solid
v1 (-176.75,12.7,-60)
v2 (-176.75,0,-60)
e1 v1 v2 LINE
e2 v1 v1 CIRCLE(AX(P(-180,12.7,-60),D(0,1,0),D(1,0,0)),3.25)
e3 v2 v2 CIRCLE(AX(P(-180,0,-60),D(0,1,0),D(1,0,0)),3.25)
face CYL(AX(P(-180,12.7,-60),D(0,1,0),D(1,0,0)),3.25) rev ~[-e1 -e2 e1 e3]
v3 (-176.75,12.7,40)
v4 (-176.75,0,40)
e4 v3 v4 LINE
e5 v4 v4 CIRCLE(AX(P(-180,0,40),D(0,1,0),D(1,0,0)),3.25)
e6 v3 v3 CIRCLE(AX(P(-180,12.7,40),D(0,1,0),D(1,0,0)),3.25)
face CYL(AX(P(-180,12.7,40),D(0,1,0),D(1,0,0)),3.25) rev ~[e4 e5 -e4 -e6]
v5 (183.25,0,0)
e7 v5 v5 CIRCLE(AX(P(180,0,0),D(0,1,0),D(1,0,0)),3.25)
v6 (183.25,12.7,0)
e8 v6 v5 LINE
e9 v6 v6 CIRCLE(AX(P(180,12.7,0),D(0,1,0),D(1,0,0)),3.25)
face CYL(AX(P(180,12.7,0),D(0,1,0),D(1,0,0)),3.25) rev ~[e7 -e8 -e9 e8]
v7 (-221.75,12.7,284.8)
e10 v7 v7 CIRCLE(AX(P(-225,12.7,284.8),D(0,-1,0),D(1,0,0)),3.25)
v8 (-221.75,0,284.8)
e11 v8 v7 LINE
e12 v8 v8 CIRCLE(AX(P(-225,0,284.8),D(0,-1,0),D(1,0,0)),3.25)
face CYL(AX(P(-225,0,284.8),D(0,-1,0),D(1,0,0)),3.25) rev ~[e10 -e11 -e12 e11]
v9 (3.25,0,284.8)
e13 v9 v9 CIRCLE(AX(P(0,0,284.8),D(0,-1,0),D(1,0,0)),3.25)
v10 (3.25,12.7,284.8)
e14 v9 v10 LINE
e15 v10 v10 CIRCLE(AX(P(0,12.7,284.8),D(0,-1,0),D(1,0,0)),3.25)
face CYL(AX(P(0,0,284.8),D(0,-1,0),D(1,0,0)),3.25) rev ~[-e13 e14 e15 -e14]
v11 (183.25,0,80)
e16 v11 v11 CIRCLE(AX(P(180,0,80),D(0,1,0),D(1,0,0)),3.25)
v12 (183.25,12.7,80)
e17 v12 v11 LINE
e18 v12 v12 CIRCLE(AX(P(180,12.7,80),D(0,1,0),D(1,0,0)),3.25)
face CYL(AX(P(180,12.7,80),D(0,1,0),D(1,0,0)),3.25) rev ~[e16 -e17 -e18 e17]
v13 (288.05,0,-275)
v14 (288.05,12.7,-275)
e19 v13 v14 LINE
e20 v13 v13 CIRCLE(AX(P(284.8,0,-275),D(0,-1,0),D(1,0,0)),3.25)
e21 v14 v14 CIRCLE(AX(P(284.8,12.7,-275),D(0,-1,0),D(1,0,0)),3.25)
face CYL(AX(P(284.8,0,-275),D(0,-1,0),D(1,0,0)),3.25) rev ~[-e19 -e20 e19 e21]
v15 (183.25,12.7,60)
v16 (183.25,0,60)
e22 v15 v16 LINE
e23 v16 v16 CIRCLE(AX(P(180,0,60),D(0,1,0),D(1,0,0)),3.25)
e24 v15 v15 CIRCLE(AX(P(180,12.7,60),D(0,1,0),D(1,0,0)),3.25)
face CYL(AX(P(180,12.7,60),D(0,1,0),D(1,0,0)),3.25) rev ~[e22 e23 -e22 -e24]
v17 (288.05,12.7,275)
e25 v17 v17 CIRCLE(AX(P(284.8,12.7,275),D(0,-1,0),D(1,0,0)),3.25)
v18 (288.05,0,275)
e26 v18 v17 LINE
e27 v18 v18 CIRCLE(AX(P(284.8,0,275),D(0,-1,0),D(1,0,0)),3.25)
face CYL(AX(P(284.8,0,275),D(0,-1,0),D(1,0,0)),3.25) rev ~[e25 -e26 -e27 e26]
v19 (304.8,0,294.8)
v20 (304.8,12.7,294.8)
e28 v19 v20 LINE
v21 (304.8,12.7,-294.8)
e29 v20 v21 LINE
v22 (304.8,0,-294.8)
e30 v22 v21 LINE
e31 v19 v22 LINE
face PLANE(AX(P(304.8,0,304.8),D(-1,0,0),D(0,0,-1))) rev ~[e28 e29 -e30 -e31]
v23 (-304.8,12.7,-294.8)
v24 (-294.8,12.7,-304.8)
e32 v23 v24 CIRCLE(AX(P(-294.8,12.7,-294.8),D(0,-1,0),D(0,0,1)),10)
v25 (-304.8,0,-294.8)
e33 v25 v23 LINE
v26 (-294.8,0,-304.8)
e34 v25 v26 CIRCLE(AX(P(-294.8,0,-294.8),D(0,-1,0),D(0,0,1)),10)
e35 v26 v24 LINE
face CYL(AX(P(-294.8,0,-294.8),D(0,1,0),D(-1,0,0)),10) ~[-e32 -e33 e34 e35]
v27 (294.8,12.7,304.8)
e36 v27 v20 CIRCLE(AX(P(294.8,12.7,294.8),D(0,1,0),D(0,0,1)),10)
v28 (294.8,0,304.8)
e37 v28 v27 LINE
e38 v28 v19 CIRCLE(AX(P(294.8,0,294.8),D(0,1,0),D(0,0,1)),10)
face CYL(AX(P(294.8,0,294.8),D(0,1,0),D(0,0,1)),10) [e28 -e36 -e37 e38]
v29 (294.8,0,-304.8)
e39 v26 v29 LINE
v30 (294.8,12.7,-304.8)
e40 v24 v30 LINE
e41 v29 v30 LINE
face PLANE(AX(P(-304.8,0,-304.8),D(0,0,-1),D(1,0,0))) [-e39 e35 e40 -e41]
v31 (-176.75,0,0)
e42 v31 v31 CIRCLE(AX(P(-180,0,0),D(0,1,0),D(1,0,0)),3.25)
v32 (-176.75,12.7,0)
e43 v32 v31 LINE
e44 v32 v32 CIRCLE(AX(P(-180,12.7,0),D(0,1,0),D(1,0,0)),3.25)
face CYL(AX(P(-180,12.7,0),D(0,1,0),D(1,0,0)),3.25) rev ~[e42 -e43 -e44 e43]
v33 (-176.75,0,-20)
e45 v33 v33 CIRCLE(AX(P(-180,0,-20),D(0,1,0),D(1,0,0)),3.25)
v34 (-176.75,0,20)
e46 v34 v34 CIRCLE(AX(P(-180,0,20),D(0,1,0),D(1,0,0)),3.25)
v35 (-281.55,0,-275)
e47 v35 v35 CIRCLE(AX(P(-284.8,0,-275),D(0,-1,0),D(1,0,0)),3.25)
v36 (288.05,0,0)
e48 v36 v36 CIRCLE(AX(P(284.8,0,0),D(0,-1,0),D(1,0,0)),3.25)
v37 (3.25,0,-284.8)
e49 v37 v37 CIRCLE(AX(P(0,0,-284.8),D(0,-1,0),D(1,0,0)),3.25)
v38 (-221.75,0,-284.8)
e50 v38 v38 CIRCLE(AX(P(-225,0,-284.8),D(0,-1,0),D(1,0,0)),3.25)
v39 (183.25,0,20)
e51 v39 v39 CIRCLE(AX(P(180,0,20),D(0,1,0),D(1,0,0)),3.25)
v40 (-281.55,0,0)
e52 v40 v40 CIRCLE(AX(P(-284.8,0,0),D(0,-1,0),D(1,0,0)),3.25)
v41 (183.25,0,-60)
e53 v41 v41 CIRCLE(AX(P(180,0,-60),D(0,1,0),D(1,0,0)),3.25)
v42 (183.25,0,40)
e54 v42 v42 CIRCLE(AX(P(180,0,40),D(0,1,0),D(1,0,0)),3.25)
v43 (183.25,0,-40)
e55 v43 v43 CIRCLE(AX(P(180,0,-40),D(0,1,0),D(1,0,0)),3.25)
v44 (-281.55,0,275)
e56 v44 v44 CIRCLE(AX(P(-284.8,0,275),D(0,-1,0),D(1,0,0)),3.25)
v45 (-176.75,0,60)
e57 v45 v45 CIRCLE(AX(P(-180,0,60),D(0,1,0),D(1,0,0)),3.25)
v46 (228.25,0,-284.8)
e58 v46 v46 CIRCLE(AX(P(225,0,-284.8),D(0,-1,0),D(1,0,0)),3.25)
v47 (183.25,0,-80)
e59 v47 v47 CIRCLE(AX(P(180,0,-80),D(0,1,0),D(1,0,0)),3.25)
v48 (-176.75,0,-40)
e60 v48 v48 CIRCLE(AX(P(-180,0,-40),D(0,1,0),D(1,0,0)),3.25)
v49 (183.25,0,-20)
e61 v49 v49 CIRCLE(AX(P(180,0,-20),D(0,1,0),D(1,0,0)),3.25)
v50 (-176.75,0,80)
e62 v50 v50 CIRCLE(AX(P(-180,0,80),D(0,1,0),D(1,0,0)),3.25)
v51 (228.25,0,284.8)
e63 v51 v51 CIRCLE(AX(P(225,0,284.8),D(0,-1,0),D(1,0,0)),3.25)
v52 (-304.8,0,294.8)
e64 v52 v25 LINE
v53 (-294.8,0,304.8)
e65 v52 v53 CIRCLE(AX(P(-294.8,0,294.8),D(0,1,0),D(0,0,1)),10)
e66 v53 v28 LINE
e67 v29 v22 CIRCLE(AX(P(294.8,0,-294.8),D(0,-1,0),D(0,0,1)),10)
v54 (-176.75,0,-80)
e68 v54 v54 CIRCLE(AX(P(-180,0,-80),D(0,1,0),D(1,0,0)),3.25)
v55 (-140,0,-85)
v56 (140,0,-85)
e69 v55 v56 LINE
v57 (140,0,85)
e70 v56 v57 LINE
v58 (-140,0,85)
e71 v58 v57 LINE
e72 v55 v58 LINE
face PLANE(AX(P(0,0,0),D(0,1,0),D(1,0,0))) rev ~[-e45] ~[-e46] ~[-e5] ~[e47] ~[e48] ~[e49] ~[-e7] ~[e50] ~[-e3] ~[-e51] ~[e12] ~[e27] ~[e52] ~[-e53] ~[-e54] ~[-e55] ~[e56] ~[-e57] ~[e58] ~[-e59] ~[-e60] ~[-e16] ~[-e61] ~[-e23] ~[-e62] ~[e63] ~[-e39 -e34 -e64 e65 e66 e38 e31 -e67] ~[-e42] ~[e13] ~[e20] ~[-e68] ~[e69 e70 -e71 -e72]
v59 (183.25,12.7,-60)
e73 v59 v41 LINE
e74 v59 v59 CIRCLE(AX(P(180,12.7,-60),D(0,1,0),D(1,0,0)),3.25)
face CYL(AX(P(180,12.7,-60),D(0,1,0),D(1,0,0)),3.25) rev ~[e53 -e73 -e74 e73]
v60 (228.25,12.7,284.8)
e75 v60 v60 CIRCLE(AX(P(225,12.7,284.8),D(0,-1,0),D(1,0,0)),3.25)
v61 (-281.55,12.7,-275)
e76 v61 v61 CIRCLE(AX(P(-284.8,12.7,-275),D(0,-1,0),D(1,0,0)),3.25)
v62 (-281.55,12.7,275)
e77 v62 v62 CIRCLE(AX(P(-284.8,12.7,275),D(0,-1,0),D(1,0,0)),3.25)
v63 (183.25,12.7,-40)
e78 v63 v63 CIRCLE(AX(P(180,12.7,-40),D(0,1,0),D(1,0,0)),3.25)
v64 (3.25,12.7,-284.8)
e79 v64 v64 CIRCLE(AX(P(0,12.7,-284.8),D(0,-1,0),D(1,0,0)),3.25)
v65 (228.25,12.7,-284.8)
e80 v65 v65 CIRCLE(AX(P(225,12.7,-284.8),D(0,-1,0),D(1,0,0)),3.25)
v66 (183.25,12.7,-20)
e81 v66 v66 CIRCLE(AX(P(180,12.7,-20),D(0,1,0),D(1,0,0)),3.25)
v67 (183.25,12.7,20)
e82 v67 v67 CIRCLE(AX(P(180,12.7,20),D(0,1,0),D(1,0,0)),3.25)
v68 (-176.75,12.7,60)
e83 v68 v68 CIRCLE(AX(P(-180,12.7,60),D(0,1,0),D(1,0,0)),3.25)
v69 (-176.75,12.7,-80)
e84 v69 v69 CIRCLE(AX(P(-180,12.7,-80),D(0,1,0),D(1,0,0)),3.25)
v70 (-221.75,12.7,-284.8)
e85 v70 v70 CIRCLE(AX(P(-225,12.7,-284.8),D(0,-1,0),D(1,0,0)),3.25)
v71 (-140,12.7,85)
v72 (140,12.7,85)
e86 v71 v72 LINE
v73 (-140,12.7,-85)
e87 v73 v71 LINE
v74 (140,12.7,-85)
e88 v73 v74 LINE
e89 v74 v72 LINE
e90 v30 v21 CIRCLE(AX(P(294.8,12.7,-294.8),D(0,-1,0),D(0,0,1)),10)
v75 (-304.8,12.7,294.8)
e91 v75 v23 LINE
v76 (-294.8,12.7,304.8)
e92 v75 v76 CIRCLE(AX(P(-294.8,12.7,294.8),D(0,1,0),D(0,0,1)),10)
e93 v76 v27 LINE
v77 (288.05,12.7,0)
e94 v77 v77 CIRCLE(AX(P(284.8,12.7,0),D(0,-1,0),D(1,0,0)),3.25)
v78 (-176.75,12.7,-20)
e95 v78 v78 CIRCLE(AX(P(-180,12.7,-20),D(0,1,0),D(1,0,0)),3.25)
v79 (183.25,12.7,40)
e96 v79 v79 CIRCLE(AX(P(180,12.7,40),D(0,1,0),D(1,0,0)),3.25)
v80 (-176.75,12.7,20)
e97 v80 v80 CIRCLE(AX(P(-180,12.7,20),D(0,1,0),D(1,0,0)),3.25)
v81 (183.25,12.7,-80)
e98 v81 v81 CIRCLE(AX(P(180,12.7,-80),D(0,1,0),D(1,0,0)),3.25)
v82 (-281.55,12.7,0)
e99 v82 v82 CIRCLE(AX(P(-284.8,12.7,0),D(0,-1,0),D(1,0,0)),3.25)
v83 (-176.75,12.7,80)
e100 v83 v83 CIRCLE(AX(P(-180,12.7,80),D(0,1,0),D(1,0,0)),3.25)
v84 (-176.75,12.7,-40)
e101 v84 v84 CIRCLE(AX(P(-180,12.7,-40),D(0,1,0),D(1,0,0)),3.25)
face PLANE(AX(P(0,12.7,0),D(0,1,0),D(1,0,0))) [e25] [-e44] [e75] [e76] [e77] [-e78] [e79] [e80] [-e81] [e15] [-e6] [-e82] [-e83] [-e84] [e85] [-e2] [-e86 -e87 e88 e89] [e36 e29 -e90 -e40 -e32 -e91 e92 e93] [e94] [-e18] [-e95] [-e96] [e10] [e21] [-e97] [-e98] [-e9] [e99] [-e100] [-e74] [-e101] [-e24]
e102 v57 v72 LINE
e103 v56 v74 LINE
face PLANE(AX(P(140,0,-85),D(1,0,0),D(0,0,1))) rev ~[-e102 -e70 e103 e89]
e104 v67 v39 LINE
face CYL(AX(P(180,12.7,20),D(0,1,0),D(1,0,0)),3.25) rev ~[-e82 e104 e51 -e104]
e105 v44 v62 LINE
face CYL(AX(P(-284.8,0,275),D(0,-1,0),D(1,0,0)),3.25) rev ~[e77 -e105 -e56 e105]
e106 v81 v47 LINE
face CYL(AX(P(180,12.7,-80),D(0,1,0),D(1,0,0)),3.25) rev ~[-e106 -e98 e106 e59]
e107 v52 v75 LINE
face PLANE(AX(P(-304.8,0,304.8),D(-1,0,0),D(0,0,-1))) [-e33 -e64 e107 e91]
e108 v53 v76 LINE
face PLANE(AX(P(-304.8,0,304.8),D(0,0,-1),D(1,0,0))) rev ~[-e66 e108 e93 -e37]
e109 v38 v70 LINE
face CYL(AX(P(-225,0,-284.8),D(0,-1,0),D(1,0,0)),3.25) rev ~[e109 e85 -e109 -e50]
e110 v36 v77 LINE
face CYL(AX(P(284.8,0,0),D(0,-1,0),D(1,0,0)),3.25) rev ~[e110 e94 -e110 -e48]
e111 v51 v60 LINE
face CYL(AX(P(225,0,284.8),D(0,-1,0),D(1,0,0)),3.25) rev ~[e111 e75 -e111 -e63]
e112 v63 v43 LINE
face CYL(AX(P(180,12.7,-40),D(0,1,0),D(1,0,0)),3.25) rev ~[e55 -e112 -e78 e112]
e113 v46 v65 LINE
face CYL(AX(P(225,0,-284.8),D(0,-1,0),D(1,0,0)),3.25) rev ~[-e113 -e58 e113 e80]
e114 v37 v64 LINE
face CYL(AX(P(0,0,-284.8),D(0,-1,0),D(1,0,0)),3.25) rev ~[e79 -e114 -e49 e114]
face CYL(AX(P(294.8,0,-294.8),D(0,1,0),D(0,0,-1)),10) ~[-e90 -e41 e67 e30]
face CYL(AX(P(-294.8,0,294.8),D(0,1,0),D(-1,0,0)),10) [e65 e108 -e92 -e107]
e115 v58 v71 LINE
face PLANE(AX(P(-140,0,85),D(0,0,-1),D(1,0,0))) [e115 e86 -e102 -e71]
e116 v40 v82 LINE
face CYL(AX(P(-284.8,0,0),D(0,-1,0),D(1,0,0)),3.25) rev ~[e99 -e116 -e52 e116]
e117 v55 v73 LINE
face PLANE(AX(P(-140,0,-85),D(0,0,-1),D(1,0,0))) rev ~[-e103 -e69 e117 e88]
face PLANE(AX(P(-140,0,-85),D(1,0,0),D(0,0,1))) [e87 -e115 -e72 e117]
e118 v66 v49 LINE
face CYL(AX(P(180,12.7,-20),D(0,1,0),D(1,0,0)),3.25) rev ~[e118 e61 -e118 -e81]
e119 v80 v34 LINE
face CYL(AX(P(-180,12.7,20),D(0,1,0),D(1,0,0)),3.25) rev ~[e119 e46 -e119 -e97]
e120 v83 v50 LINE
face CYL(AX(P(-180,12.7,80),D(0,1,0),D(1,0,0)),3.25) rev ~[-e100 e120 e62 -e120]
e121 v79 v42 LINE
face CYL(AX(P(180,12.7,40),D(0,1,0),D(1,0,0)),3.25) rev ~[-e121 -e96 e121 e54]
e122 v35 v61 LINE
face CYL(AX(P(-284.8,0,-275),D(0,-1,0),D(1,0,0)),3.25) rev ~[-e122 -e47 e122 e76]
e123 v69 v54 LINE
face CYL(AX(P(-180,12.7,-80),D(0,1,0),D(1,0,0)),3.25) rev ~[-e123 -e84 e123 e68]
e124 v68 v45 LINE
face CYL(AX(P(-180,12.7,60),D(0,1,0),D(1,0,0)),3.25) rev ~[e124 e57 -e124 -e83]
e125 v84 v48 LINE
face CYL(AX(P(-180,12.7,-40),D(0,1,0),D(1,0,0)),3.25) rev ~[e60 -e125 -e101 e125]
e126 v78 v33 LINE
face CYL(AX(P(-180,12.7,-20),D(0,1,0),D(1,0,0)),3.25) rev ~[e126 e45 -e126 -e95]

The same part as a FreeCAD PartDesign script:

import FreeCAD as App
import Part
import Sketcher


def edges_at(feature, points):
    """Names of the edges that pass closest to the given points."""
    edges = feature.Shape.Edges
    near = lambda p: min(range(len(edges)), key=lambda i: edges[i].distToShape(Part.Vertex(*p))[0])
    return sorted({f"Edge{near(p) + 1}" for p in points})


def add_polygon(sketch, points):
    """Adds a closed chain of lines whose ends are joined by coincident constraints."""
    first, n = sketch.GeometryCount, len(points)
    for a, b in zip(points, points[1:] + points[:1]):
        sketch.addGeometry(Part.LineSegment(App.Vector(*a, 0), App.Vector(*b, 0)), False)
    for i in range(n):
        sketch.addConstraint(Sketcher.Constraint("Coincident", first + i, 2, first + (i + 1) % n, 1))

doc = App.newDocument("Part")
body = doc.addObject("PartDesign::Body", "Body")

# Sketch on XZ plane
sketch1 = body.newObject("Sketcher::SketchObject", "Sketch")
sketch1.AttachmentSupport = (doc.getObject("XZ_Plane"), [""])
sketch1.MapMode = "FlatFace"
add_polygon(sketch1, [(-305, -305), (-305, 305), (305, 305), (305, -305)])  # lines 0-3
sketch1.addConstraint([
    Sketcher.Constraint("Vertical", 0),
    Sketcher.Constraint("Horizontal", 1),
    Sketcher.Constraint("Vertical", 2),
    Sketcher.Constraint("Horizontal", 3),
    Sketcher.Constraint("Symmetric", 0, 2, 2, 2, -1, 1),
    Sketcher.Constraint("Equal", 3, 0),
    Sketcher.Constraint("DistanceX", 1, 1, 1, 2, 609.6),
])
pad1 = body.newObject("PartDesign::Pad", "Pad")
pad1.Profile = sketch1
pad1.Length = 12.7
pad1.Reversed = True

# Sketch on XZ plane
sketch2 = body.newObject("Sketcher::SketchObject", "Sketch001")
sketch2.AttachmentSupport = (doc.getObject("XZ_Plane"), [""])
sketch2.MapMode = "FlatFace"
add_polygon(sketch2, [(-140, 85), (-140, -85), (140, -85), (140, 85)])  # lines 0-3
sketch2.addConstraint([
    Sketcher.Constraint("Vertical", 0),
    Sketcher.Constraint("Horizontal", 1),
    Sketcher.Constraint("Vertical", 2),
    Sketcher.Constraint("Horizontal", 3),
    Sketcher.Constraint("Symmetric", 0, 2, 2, 2, -1, 1),
    Sketcher.Constraint("DistanceX", 1, 1, 1, 2, 280.0),
    Sketcher.Constraint("DistanceY", 0, 2, 0, 1, 170.0),
])
pocket1 = body.newObject("PartDesign::Pocket", "Pocket")
pocket1.Profile = sketch2
pocket1.Type = "UpToFirst"

# Sketch on XZ plane
sketch3 = body.newObject("Sketcher::SketchObject", "Sketch002")
sketch3.AttachmentSupport = (doc.getObject("XZ_Plane"), [""])
sketch3.MapMode = "FlatFace"
sketch3.addGeometry(Part.Circle(App.Vector(-284.8, 275, 0), App.Vector(0, 0, 1), 3.2), False)
sketch3.addConstraint([
    Sketcher.Constraint("Diameter", 0, 6.5),
    Sketcher.Constraint("DistanceY", -1, 1, 0, 3, 275.0),
    Sketcher.Constraint("DistanceX", 0, 3, -1, 1, 284.8),
])
pocket2 = body.newObject("PartDesign::Pocket", "Pocket001")
pocket2.Profile = sketch3
pocket2.Type = "UpToFirst"

# Sketch on XZ plane
sketch4 = body.newObject("Sketcher::SketchObject", "Sketch003")
sketch4.AttachmentSupport = (doc.getObject("XZ_Plane"), [""])
sketch4.MapMode = "FlatFace"
sketch4.addGeometry(Part.Circle(App.Vector(-284.8, 0, 0), App.Vector(0, 0, 1), 3.2), False)
sketch4.addConstraint([
    Sketcher.Constraint("PointOnObject", 0, 3, -1),
    Sketcher.Constraint("Diameter", 0, 6.5),
    Sketcher.Constraint("DistanceX", 0, 3, -1, 1, 284.8),
])
pocket3 = body.newObject("PartDesign::Pocket", "Pocket002")
pocket3.Profile = sketch4
pocket3.Type = "UpToFirst"

# Sketch on XZ plane
sketch5 = body.newObject("Sketcher::SketchObject", "Sketch004")
sketch5.AttachmentSupport = (doc.getObject("XZ_Plane"), [""])
sketch5.MapMode = "FlatFace"
sketch5.addGeometry(Part.Circle(App.Vector(-284.8, -275, 0), App.Vector(0, 0, 1), 3.2), False)
sketch5.addConstraint([
    Sketcher.Constraint("Diameter", 0, 6.5),
    Sketcher.Constraint("DistanceY", 0, 3, -1, 1, 275.0),
    Sketcher.Constraint("DistanceX", 0, 3, -1, 1, 284.8),
])
pocket4 = body.newObject("PartDesign::Pocket", "Pocket003")
pocket4.Profile = sketch5
pocket4.Type = "UpToFirst"

# Sketch on XZ plane
sketch6 = body.newObject("Sketcher::SketchObject", "Sketch005")
sketch6.AttachmentSupport = (doc.getObject("XZ_Plane"), [""])
sketch6.MapMode = "FlatFace"
sketch6.addGeometry(Part.Circle(App.Vector(284.8, -275, 0), App.Vector(0, 0, 1), 3.2), False)
sketch6.addConstraint([
    Sketcher.Constraint("Diameter", 0, 6.5),
    Sketcher.Constraint("DistanceY", 0, 3, -1, 1, 275.0),
    Sketcher.Constraint("DistanceX", -1, 1, 0, 3, 284.8),
])
pocket5 = body.newObject("PartDesign::Pocket", "Pocket004")
pocket5.Profile = sketch6
pocket5.Type = "UpToFirst"

# Sketch on XZ plane
sketch7 = body.newObject("Sketcher::SketchObject", "Sketch006")
sketch7.AttachmentSupport = (doc.getObject("XZ_Plane"), [""])
sketch7.MapMode = "FlatFace"
sketch7.addGeometry(Part.Circle(App.Vector(284.8, 0, 0), App.Vector(0, 0, 1), 3.2), False)
sketch7.addConstraint([
    Sketcher.Constraint("PointOnObject", 0, 3, -1),
    Sketcher.Constraint("Diameter", 0, 6.5),
    Sketcher.Constraint("DistanceX", -1, 1, 0, 3, 284.8),
])
pocket6 = body.newObject("PartDesign::Pocket", "Pocket005")
pocket6.Profile = sketch7
pocket6.Type = "UpToFirst"

# Sketch on XZ plane
sketch8 = body.newObject("Sketcher::SketchObject", "Sketch007")
sketch8.AttachmentSupport = (doc.getObject("XZ_Plane"), [""])
sketch8.MapMode = "FlatFace"
sketch8.addGeometry(Part.Circle(App.Vector(284.8, 275, 0), App.Vector(0, 0, 1), 3.2), False)
sketch8.addConstraint([
    Sketcher.Constraint("Diameter", 0, 6.5),
    Sketcher.Constraint("DistanceY", -1, 1, 0, 3, 275.0),
    Sketcher.Constraint("DistanceX", -1, 1, 0, 3, 284.8),
])
pocket7 = body.newObject("PartDesign::Pocket", "Pocket006")
pocket7.Profile = sketch8
pocket7.Type = "UpToFirst"

# Sketch on XZ plane
sketch9 = body.newObject("Sketcher::SketchObject", "Sketch008")
sketch9.AttachmentSupport = (doc.getObject("XZ_Plane"), [""])
sketch9.MapMode = "FlatFace"
sketch9.addGeometry(Part.Circle(App.Vector(-225, 284.8, 0), App.Vector(0, 0, 1), 3.2), False)
sketch9.addConstraint([
    Sketcher.Constraint("Diameter", 0, 6.5),
    Sketcher.Constraint("DistanceX", 0, 3, -1, 1, 225.0),
    Sketcher.Constraint("DistanceY", -1, 1, 0, 3, 284.8),
])
pocket8 = body.newObject("PartDesign::Pocket", "Pocket007")
pocket8.Profile = sketch9
pocket8.Type = "UpToFirst"

# Sketch on XZ plane
sketch10 = body.newObject("Sketcher::SketchObject", "Sketch009")
sketch10.AttachmentSupport = (doc.getObject("XZ_Plane"), [""])
sketch10.MapMode = "FlatFace"
sketch10.addGeometry(Part.Circle(App.Vector(0, 284.8, 0), App.Vector(0, 0, 1), 3.2), False)
sketch10.addConstraint([
    Sketcher.Constraint("PointOnObject", 0, 3, -2),
    Sketcher.Constraint("Diameter", 0, 6.5),
    Sketcher.Constraint("DistanceY", -1, 1, 0, 3, 284.8),
])
pocket9 = body.newObject("PartDesign::Pocket", "Pocket008")
pocket9.Profile = sketch10
pocket9.Type = "UpToFirst"

# Sketch on XZ plane
sketch11 = body.newObject("Sketcher::SketchObject", "Sketch010")
sketch11.AttachmentSupport = (doc.getObject("XZ_Plane"), [""])
sketch11.MapMode = "FlatFace"
sketch11.addGeometry(Part.Circle(App.Vector(225, 284.8, 0), App.Vector(0, 0, 1), 3.2), False)
sketch11.addConstraint([
    Sketcher.Constraint("Diameter", 0, 6.5),
    Sketcher.Constraint("DistanceX", -1, 1, 0, 3, 225.0),
    Sketcher.Constraint("DistanceY", -1, 1, 0, 3, 284.8),
])
pocket10 = body.newObject("PartDesign::Pocket", "Pocket009")
pocket10.Profile = sketch11
pocket10.Type = "UpToFirst"

# Sketch on XZ plane
sketch12 = body.newObject("Sketcher::SketchObject", "Sketch011")
sketch12.AttachmentSupport = (doc.getObject("XZ_Plane"), [""])
sketch12.MapMode = "FlatFace"
sketch12.addGeometry(Part.Circle(App.Vector(225, -284.8, 0), App.Vector(0, 0, 1), 3.2), False)
sketch12.addConstraint([
    Sketcher.Constraint("Diameter", 0, 6.5),
    Sketcher.Constraint("DistanceX", -1, 1, 0, 3, 225.0),
    Sketcher.Constraint("DistanceY", 0, 3, -1, 1, 284.8),
])
pocket11 = body.newObject("PartDesign::Pocket", "Pocket010")
pocket11.Profile = sketch12
pocket11.Type = "UpToFirst"

# Sketch on XZ plane
sketch13 = body.newObject("Sketcher::SketchObject", "Sketch012")
sketch13.AttachmentSupport = (doc.getObject("XZ_Plane"), [""])
sketch13.MapMode = "FlatFace"
sketch13.addGeometry(Part.Circle(App.Vector(0, -284.8, 0), App.Vector(0, 0, 1), 3.2), False)
sketch13.addConstraint([
    Sketcher.Constraint("PointOnObject", 0, 3, -2),
    Sketcher.Constraint("Diameter", 0, 6.5),
    Sketcher.Constraint("DistanceY", 0, 3, -1, 1, 284.8),
])
pocket12 = body.newObject("PartDesign::Pocket", "Pocket011")
pocket12.Profile = sketch13
pocket12.Type = "UpToFirst"

# Sketch on XZ plane
sketch14 = body.newObject("Sketcher::SketchObject", "Sketch013")
sketch14.AttachmentSupport = (doc.getObject("XZ_Plane"), [""])
sketch14.MapMode = "FlatFace"
sketch14.addGeometry(Part.Circle(App.Vector(-225, -284.8, 0), App.Vector(0, 0, 1), 3.2), False)
sketch14.addConstraint([
    Sketcher.Constraint("Diameter", 0, 6.5),
    Sketcher.Constraint("DistanceX", 0, 3, -1, 1, 225.0),
    Sketcher.Constraint("DistanceY", 0, 3, -1, 1, 284.8),
])
pocket13 = body.newObject("PartDesign::Pocket", "Pocket012")
pocket13.Profile = sketch14
pocket13.Type = "UpToFirst"

# Sketch on XZ plane
sketch15 = body.newObject("Sketcher::SketchObject", "Sketch014")
sketch15.AttachmentSupport = (doc.getObject("XZ_Plane"), [""])
sketch15.MapMode = "FlatFace"
sketch15.AttachmentOffset = App.Placement(App.Vector(0, 0, -12.7), App.Rotation())
sketch15.addGeometry([
    Part.Circle(App.Vector(-180, 0, 0), App.Vector(0, 0, 1), 3.2),
    Part.Circle(App.Vector(180, 0, 0), App.Vector(0, 0, 1), 3.2),
], False)
sketch15.addConstraint([
    Sketcher.Constraint("Equal", 0, 1),
    Sketcher.Constraint("Symmetric", 0, 3, 1, 3, -1, 1),
    Sketcher.Constraint("PointOnObject", 0, 3, -1),
    Sketcher.Constraint("Diameter", 0, 6.5),
    Sketcher.Constraint("DistanceX", 0, 3, -1, 1, 180.0),
])
pocket14 = body.newObject("PartDesign::Pocket", "Pocket013")
pocket14.Profile = sketch15
pocket14.Type = "ThroughAll"
pocket14.Reversed = True
doc.recompute()

linearpattern = body.newObject("PartDesign::LinearPattern", "LinearPattern")
linearpattern.Originals = [pocket14]
linearpattern.Direction = (doc.getObject("Z_Axis"), [""])
linearpattern.Mode = "offset"
linearpattern.Offset = 20
linearpattern.Occurrences = 5
body.Tip = linearpattern
doc.recompute()

linearpattern2 = body.newObject("PartDesign::LinearPattern", "LinearPattern001")
linearpattern2.Originals = [pocket14]
linearpattern2.Direction = (doc.getObject("Z_Axis"), [""])
linearpattern2.Mode = "offset"
linearpattern2.Offset = 20
linearpattern2.Occurrences = 5
linearpattern2.Reversed = True
body.Tip = linearpattern2
doc.recompute()

fillet = body.newObject("PartDesign::Fillet", "Fillet")
fillet.Base = (linearpattern2, edges_at(linearpattern2, [
    (304.8, 6.35, 304.8),
    (-304.8, 6.35, 304.8),
    (-304.8, 6.35, -304.8),
    (304.8, 6.35, -304.8),
]))
fillet.Radius = 10

doc.recompute()
